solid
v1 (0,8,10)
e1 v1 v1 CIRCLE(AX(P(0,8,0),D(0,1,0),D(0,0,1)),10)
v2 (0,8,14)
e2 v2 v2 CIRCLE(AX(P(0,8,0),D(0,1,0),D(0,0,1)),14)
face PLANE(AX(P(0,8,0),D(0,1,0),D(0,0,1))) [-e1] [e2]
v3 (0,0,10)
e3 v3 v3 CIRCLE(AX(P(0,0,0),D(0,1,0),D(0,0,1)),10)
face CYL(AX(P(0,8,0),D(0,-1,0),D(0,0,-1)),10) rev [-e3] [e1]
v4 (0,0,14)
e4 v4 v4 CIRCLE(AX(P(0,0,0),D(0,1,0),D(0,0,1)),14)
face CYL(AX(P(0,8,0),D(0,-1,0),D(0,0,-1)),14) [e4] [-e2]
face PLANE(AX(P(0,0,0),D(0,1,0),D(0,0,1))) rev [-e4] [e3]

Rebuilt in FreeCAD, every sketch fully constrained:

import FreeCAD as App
import Part
import Sketcher

V = App.Vector

doc = App.newDocument("Part")
body = doc.addObject("PartDesign::Body", "Body")

sketch1 = body.newObject("Sketcher::SketchObject", "Sketch")
sketch1.AttachmentSupport = (doc.getObject("XZ_Plane"), [""])
sketch1.MapMode = "FlatFace"
sketch1.addGeometry(Part.Circle(V(0, 0, 0), V(0, 0, 1), 14), False)
sketch1.addGeometry(Part.Circle(V(0, 0, 0), V(0, 0, 1), 10), False)
sketch1.addConstraint(Sketcher.Constraint("Coincident", 0, 3, -1, 1))
sketch1.addConstraint(Sketcher.Constraint("Coincident", 1, 3, -1, 1))
sketch1.addConstraint(Sketcher.Constraint("Diameter", 0, 28.0))
sketch1.addConstraint(Sketcher.Constraint("Diameter", 1, 20.0))
pad1 = body.newObject("PartDesign::Pad", "Pad")
pad1.Profile = sketch1
pad1.Length = 8
pad1.Reversed = True

doc.recompute()
